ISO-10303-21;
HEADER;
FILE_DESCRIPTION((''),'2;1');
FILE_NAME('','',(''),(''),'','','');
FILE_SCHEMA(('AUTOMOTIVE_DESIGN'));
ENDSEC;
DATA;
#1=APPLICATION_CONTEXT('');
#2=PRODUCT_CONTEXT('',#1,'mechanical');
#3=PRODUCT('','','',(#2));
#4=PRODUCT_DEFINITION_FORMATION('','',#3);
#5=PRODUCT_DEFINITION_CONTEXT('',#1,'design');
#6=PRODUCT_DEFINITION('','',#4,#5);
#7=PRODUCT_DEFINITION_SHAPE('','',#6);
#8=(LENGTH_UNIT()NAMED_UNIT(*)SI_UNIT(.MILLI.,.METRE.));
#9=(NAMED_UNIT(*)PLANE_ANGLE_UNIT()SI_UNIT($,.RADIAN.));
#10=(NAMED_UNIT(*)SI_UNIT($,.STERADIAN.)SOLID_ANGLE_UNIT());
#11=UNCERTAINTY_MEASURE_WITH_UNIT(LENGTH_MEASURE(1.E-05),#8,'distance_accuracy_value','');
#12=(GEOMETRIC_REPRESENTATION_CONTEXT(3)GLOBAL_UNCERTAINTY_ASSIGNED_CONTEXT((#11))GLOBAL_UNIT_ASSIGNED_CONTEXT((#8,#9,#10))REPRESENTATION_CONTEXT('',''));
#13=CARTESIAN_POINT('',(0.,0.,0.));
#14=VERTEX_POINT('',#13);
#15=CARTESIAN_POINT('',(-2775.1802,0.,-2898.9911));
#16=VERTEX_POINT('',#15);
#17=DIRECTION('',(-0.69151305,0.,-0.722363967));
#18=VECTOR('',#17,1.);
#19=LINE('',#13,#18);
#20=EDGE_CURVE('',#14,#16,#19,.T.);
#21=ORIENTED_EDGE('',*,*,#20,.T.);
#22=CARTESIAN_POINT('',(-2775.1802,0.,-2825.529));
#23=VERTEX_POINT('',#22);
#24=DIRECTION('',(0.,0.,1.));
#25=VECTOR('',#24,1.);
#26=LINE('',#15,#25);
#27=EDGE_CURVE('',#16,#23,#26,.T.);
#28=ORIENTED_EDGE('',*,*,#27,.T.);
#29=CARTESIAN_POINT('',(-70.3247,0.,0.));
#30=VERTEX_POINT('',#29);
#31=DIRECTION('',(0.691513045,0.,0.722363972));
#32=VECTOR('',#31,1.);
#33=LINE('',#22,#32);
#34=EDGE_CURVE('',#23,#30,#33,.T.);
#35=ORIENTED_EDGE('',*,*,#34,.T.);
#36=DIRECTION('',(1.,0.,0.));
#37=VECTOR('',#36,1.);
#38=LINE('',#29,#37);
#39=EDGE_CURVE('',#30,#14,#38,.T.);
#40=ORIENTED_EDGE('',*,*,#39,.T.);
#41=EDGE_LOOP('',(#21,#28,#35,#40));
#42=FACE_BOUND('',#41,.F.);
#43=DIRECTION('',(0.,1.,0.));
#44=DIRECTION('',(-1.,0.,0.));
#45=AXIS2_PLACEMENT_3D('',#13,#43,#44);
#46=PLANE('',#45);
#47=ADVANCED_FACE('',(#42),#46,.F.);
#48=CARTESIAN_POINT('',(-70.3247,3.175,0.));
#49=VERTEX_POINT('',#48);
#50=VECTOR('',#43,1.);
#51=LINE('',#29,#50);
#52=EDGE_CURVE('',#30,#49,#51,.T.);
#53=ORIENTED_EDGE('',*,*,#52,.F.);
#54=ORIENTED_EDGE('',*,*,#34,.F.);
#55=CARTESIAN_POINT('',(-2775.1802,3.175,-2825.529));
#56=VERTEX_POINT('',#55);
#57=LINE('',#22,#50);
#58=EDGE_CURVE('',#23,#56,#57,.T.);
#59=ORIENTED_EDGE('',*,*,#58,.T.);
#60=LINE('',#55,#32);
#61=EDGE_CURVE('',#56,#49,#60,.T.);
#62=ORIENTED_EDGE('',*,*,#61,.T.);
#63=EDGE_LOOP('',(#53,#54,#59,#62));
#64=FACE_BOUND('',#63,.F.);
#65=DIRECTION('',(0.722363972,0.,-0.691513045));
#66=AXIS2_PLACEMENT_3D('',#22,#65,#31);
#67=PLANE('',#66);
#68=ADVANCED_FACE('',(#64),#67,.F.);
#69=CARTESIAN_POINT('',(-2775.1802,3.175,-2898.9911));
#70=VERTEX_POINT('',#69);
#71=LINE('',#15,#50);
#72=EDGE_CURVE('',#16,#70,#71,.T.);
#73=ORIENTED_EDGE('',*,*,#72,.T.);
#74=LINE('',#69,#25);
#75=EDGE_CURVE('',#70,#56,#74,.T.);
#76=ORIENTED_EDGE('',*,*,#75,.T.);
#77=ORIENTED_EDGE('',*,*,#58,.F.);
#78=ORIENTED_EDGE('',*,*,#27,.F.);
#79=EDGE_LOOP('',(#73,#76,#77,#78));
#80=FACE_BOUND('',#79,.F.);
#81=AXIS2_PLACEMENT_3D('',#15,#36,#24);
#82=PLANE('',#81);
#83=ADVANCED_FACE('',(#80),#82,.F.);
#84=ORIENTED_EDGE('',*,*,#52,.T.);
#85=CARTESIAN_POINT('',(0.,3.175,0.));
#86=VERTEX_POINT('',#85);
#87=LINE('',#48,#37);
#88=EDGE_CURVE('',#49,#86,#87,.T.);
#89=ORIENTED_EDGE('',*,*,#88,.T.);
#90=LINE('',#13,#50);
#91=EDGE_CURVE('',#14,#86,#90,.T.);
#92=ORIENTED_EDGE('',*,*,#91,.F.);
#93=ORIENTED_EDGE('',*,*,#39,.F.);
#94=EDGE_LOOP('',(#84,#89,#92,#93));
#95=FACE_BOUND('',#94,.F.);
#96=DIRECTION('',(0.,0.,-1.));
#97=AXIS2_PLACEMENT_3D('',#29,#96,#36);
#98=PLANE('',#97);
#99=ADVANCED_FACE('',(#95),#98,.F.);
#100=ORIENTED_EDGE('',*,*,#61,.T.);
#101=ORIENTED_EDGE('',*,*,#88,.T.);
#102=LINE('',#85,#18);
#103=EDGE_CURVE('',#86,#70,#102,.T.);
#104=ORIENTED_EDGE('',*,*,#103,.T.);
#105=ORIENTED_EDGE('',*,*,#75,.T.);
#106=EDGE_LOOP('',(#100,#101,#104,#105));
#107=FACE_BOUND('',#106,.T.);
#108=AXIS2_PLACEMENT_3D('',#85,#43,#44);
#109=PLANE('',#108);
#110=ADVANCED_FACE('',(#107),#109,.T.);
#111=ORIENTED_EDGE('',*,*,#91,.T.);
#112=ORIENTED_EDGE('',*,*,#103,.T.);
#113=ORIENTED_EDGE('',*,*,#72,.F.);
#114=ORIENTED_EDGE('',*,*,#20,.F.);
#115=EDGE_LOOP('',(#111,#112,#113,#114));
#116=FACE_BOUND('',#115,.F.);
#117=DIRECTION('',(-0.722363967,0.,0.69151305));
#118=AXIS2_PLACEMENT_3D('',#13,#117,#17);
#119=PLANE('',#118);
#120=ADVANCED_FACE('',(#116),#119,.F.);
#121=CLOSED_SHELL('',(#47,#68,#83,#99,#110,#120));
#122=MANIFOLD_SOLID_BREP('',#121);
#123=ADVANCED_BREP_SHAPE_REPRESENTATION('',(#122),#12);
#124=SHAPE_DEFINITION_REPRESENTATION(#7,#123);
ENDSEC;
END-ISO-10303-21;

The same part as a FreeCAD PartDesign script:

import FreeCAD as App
import Part
import Sketcher
from FreeCAD import Vector
Q = App.Units.Quantity

doc = App.newDocument("Part")
body = doc.addObject("PartDesign::Body", "Body")

# Sketch on XZ plane
sketch1 = body.newObject("Sketcher::SketchObject", "Sketch")
sketch1.AttachmentSupport = (doc.getObject("XZ_Plane"), [""])
sketch1.MapMode = "FlatFace"
sketch1.addGeometry(Part.LineSegment(Vector(-70, 0, 0), Vector(0, 0, 0)), False)
sketch1.addGeometry(Part.LineSegment(Vector(0, 0, 0), Vector(-2775, -2899, 0)), False)
sketch1.addGeometry(Part.LineSegment(Vector(-2775, -2899, 0), Vector(-2775, -2826, 0)), False)
sketch1.addGeometry(Part.LineSegment(Vector(-2775, -2826, 0), Vector(-70, 0, 0)), False)
sketch1.addConstraint(Sketcher.Constraint("Coincident", 0, 2, 1, 1))
sketch1.addConstraint(Sketcher.Constraint("Coincident", 1, 2, 2, 1))
sketch1.addConstraint(Sketcher.Constraint("Coincident", 2, 2, 3, 1))
sketch1.addConstraint(Sketcher.Constraint("Coincident", 3, 2, 0, 1))
sketch1.addConstraint(Sketcher.Constraint("Horizontal", 0))
sketch1.addConstraint(Sketcher.Constraint("Vertical", 2))
sketch1.addConstraint(Sketcher.Constraint("Coincident", 0, 2, -1, 1))
sketch1.addConstraint(Sketcher.Constraint("Parallel", 1, 3))
sketch1.addConstraint(Sketcher.Constraint("Distance", 1, Q("158 in")))
sketch1.addConstraint(Sketcher.Constraint("Angle", 1, Q("-133.75 deg")))
sketch1.addConstraint(Sketcher.Constraint("DistanceX", 0, 1, 0, 2, Q("2.7687 in")))
pad1 = body.newObject("PartDesign::Pad", "Pad")
pad1.Profile = sketch1
pad1.Length = Q("0.125 in")
pad1.Reversed = True

doc.recompute()
